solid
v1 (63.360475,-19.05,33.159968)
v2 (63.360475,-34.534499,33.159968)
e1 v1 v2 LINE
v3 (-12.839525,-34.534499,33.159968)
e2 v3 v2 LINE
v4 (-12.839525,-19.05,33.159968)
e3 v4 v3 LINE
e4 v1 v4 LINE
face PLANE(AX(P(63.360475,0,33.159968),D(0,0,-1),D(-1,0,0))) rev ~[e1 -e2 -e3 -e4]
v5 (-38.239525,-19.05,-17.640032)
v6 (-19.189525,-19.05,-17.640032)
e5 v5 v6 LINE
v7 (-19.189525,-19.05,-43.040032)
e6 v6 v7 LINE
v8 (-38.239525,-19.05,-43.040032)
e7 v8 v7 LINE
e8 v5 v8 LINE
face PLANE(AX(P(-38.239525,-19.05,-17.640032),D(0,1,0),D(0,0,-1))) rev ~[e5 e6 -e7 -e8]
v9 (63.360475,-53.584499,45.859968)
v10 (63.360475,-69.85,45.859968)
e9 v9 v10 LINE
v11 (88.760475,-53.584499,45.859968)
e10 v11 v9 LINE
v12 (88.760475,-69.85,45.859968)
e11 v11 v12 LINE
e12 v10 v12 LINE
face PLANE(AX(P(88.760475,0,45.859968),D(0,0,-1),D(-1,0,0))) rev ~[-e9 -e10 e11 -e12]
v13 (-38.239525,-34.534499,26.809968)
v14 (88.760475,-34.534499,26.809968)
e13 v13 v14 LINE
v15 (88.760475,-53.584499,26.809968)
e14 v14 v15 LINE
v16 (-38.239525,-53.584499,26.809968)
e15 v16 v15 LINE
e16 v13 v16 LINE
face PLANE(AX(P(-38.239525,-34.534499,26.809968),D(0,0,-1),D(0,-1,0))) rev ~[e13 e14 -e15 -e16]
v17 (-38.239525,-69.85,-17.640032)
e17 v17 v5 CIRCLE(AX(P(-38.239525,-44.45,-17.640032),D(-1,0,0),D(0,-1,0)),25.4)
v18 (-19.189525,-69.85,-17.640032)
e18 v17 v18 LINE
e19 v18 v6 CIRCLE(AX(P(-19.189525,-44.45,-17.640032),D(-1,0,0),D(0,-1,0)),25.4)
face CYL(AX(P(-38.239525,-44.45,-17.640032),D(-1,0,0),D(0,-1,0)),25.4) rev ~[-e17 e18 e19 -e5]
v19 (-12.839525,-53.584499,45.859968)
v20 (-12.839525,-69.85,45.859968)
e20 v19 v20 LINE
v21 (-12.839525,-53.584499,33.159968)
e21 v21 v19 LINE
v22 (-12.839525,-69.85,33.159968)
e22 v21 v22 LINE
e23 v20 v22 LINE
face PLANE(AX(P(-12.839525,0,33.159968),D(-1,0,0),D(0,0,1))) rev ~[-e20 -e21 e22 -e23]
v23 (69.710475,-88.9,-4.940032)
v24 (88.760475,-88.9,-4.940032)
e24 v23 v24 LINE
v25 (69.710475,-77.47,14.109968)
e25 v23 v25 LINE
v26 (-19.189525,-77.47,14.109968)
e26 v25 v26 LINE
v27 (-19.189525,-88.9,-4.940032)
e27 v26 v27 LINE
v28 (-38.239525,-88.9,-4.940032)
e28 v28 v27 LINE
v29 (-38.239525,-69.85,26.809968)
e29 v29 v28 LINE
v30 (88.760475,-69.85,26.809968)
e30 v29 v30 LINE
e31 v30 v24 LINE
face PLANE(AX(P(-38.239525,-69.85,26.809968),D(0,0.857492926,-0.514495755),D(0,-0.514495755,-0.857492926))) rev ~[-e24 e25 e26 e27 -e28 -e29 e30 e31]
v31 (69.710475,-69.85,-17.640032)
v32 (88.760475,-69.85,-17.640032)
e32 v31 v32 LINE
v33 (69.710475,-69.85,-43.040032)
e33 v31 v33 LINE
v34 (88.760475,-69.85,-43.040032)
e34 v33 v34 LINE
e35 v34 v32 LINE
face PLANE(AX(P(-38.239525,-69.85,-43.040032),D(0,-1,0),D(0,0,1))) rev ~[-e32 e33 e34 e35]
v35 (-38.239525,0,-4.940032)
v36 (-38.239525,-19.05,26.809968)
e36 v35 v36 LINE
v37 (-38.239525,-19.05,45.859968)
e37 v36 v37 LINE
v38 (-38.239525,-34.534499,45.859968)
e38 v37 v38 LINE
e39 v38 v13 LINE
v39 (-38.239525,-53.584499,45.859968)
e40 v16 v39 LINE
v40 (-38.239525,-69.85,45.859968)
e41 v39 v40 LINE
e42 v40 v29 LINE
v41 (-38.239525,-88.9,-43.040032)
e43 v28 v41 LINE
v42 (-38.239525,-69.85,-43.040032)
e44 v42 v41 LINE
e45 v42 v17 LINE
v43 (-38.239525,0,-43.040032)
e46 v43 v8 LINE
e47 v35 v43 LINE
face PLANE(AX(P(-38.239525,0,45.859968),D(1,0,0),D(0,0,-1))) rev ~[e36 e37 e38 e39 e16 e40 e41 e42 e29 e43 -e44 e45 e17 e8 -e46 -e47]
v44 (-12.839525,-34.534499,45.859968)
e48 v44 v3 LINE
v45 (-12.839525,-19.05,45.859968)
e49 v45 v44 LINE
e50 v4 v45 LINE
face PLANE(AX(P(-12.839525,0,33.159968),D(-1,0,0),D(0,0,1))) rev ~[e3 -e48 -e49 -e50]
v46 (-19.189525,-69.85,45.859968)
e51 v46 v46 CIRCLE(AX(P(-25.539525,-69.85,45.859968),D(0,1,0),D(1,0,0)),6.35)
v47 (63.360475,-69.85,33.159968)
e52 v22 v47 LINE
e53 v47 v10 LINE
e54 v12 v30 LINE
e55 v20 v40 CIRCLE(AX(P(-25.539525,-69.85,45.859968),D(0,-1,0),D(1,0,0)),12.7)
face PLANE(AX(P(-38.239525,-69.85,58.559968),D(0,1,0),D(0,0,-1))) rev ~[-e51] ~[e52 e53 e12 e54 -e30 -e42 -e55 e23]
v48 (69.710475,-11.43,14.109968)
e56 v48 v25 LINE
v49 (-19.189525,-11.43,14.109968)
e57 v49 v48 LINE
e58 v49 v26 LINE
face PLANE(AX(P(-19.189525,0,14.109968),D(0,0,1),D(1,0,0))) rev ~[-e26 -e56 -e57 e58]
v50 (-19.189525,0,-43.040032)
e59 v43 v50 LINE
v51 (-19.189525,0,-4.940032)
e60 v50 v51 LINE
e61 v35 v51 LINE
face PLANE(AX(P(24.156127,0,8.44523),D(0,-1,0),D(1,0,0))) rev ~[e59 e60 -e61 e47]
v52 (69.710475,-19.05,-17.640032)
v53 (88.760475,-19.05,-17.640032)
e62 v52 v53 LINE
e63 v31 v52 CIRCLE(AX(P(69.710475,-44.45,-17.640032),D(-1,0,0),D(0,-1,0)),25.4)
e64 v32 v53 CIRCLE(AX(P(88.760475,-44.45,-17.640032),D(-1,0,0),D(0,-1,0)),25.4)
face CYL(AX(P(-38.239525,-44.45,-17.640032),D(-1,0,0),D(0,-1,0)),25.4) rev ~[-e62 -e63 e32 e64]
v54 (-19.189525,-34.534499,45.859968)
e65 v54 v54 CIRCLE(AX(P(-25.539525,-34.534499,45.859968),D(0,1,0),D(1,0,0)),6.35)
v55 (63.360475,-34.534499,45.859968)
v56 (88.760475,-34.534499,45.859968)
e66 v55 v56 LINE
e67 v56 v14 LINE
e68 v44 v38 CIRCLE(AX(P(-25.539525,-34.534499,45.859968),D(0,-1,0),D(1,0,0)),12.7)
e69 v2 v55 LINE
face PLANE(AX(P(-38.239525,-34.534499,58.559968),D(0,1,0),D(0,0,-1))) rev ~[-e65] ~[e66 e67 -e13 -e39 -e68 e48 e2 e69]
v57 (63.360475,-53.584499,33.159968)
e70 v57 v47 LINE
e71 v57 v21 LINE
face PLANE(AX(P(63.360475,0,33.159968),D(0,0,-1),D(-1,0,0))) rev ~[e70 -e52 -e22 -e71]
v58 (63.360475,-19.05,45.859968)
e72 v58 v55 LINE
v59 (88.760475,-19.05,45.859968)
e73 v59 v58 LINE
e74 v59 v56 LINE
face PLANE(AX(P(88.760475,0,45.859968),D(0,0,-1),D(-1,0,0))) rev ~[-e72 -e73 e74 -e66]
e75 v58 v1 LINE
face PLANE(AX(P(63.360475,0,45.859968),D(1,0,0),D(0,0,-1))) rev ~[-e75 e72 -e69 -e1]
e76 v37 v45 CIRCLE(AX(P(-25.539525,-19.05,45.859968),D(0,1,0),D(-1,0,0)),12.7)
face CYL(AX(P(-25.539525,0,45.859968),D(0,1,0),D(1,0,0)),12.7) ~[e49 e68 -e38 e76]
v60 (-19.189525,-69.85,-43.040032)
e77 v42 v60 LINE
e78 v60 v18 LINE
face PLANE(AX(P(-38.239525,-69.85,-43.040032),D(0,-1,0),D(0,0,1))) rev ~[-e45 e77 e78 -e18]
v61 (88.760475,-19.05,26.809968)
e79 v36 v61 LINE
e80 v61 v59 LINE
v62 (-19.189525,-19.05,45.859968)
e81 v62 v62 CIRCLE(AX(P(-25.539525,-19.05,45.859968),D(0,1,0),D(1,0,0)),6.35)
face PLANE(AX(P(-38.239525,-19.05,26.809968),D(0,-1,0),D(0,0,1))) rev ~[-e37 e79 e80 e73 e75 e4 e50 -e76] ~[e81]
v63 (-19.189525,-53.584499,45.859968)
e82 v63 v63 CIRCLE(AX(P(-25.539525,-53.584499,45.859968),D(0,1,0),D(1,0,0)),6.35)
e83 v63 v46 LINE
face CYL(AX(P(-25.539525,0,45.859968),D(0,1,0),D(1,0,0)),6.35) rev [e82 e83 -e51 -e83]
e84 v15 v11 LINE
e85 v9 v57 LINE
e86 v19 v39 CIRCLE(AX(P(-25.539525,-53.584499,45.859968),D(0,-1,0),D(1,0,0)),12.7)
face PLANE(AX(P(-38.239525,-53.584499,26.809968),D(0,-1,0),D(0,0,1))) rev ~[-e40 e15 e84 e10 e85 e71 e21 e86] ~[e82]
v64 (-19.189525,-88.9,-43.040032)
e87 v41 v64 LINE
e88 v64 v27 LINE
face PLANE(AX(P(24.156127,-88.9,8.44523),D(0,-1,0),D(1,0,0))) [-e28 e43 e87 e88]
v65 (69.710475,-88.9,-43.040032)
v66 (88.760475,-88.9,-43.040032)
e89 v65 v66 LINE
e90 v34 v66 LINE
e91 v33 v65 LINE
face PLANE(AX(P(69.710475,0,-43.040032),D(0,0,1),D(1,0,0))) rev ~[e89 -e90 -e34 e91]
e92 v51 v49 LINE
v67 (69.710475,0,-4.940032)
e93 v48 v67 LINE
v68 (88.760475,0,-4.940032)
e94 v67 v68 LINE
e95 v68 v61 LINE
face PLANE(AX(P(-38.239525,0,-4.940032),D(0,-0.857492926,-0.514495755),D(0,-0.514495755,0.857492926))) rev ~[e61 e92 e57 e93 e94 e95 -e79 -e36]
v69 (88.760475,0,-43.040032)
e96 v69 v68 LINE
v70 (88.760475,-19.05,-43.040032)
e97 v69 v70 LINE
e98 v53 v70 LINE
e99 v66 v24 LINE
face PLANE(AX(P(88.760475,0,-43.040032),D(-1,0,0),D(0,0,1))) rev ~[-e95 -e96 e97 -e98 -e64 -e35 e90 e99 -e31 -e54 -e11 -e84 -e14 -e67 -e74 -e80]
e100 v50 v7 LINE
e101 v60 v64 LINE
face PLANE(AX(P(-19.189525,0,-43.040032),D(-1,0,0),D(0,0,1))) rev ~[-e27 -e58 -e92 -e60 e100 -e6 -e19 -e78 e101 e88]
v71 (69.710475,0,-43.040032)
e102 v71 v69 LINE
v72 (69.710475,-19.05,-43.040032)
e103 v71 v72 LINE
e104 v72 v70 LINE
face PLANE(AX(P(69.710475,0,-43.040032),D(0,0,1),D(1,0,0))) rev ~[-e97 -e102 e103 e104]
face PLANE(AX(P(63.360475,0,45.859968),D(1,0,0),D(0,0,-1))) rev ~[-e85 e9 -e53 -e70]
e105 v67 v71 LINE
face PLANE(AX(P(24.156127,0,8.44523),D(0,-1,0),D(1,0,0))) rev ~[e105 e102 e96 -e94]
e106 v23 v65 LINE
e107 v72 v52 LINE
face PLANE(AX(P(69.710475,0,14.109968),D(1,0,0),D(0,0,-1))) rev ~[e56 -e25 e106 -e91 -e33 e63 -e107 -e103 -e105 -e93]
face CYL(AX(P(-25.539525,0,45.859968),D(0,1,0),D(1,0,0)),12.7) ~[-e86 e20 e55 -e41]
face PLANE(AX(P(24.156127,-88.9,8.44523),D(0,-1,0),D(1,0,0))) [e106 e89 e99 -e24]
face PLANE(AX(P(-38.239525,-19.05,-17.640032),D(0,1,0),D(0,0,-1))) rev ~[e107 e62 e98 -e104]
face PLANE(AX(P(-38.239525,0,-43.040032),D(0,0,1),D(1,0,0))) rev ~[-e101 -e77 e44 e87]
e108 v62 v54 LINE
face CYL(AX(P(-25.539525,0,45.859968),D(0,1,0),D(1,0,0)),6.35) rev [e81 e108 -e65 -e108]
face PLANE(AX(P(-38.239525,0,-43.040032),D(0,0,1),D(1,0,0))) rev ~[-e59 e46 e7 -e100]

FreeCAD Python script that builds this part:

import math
import FreeCAD as App
import Part
import Sketcher
from FreeCAD import Vector
Q = App.Units.Quantity


def add_polygon(sketch, points):
    """Adds a closed chain of lines whose ends are joined by coincident constraints."""
    first, n = sketch.GeometryCount, len(points)
    for a, b in zip(points, points[1:] + points[:1]):
        sketch.addGeometry(Part.LineSegment(App.Vector(*a, 0), App.Vector(*b, 0)), False)
    for i in range(n):
        sketch.addConstraint(Sketcher.Constraint("Coincident", first + i, 2, first + (i + 1) % n, 1))

doc = App.newDocument("Part")
body = doc.addObject("PartDesign::Body", "Body")

# Sketch on XZ plane
sketch1 = doc.addObject("Sketcher::SketchObject", "Sketch")
body.addObject(sketch1)
sketch1.AttachmentSupport = (doc.XZ_Plane, [""])
sketch1.MapMode = "FlatFace"
sketch1.addGeometry([
    Part.LineSegment(Vector(-38, -43, 0), Vector(-19, -43, 0)),  # 0
    Part.LineSegment(Vector(-19, -43, 0), Vector(-19, 14, 0)),  # 1
    Part.LineSegment(Vector(-19, 14, 0), Vector(70, 14, 0)),  # 2
    Part.LineSegment(Vector(70, 14, 0), Vector(70, -43, 0)),  # 3
    Part.LineSegment(Vector(70, -43, 0), Vector(89, -43, 0)),  # 4
    Part.LineSegment(Vector(89, -43, 0), Vector(89, 46, 0)),  # 5
    Part.LineSegment(Vector(89, 46, 0), Vector(63, 46, 0)),  # 6
    Part.LineSegment(Vector(63, 46, 0), Vector(63, 33, 0)),  # 7
    Part.LineSegment(Vector(63, 33, 0), Vector(-13, 33, 0)),  # 8
    Part.LineSegment(Vector(-13, 33, 0), Vector(-13, 46, 0)),  # 9
    Part.ArcOfCircle(Part.Circle(Vector(-26, 46, 0), Vector(0, 0, 1), 13), math.radians(0), math.radians(180)),  # 10
    Part.LineSegment(Vector(-38, 46, 0), Vector(-38, -43, 0)),  # 11
    Part.Circle(Vector(-26, 46, 0), Vector(0, 0, 1), 6),  # 12
], False)
sketch1.addConstraint([
    Sketcher.Constraint("Coincident", 0, 2, 1, 1),
    Sketcher.Constraint("Coincident", 1, 2, 2, 1),
    Sketcher.Constraint("Coincident", 2, 2, 3, 1),
    Sketcher.Constraint("Coincident", 3, 2, 4, 1),
    Sketcher.Constraint("Coincident", 4, 2, 5, 1),
    Sketcher.Constraint("Coincident", 5, 2, 6, 1),
    Sketcher.Constraint("Coincident", 6, 2, 7, 1),
    Sketcher.Constraint("Coincident", 7, 2, 8, 1),
    Sketcher.Constraint("Coincident", 8, 2, 9, 1),
    Sketcher.Constraint("Tangent", 9, 2, 10, 1),
    Sketcher.Constraint("Tangent", 10, 2, 11, 1),
    Sketcher.Constraint("Coincident", 11, 2, 0, 1),
    Sketcher.Constraint("Horizontal", 0),
    Sketcher.Constraint("Vertical", 1),
    Sketcher.Constraint("Horizontal", 2),
    Sketcher.Constraint("Vertical", 3),
    Sketcher.Constraint("Horizontal", 4),
    Sketcher.Constraint("Vertical", 5),
    Sketcher.Constraint("Horizontal", 6),
    Sketcher.Constraint("Vertical", 7),
    Sketcher.Constraint("Horizontal", 8),
    Sketcher.Constraint("Vertical", 9),
    Sketcher.Constraint("Vertical", 11),
    Sketcher.Constraint("Coincident", 12, 3, 10, 3),
    Sketcher.Constraint("Horizontal", 0, 2, 3, 2),
    Sketcher.Constraint("Horizontal", 12, 3, 5, 2),
    Sketcher.Constraint("Equal", 0, 4),
    Sketcher.Constraint("Equal", 2, 5),
    Sketcher.Constraint("Diameter", 12, Q("0.5 in")),
    Sketcher.Constraint("Radius", 10, Q("0.5 in")),
    Sketcher.Constraint("DistanceX", 6, 2, 6, 1, Q("1 in")),
    Sketcher.Constraint("DistanceX", 8, 2, 8, 1, Q("3 in")),
    Sketcher.Constraint("DistanceX", 2, 1, 2, 2, Q("3.5 in")),
    Sketcher.Constraint("DistanceY", 7, 2, 7, 1, Q("0.5 in")),
    Sketcher.Constraint("DistanceY", 1, 1, 1, 2, Q("2.25 in")),
    Sketcher.Constraint("DistanceY", -1, 1, 10, 3, 45.859968),
    Sketcher.Constraint("DistanceX", 10, 3, -1, 1, 25.539525),
])
pad1 = doc.addObject("PartDesign::Pad", "Pad")
body.addObject(pad1)
pad1.Profile = sketch1
pad1.Length = Q("3.5 in")

# Sketch on YZ plane
sketch2 = doc.addObject("Sketcher::SketchObject", "Sketch001")
body.addObject(sketch2)
sketch2.AttachmentSupport = (doc.YZ_Plane, [""])
sketch2.MapMode = "FlatFace"
sketch2.AttachmentOffset = App.Placement(Vector(0, 0, -38.239525), App.Rotation())
add_polygon(sketch2, [(-70, 27), (-89, -5), (-89, 59), (-70, 59)])  # lines 0-3
add_polygon(sketch2, [(0, 59), (0, -5), (-19, 27), (-19, 59)])  # lines 4-7
add_polygon(sketch2, [(-35, 27), (-54, 27), (-54, 59), (-35, 59)])  # lines 8-11
sketch2.addGeometry(Part.ArcOfCircle(Part.Circle(Vector(-44, -18, 0), Vector(0, 0, 1), 25), math.radians(0), math.radians(180)), False)  # 12
sketch2.addGeometry(Part.LineSegment(Vector(-19, -18, 0), Vector(-19, -43, 0)), False)  # 13
sketch2.addGeometry(Part.LineSegment(Vector(-19, -43, 0), Vector(-70, -43, 0)), False)  # 14
sketch2.addGeometry(Part.LineSegment(Vector(-70, -43, 0), Vector(-70, -18, 0)), False)  # 15
sketch2.addConstraint([
    Sketcher.Constraint("Tangent", 12, 1, 13, 1),
    Sketcher.Constraint("Coincident", 13, 2, 14, 1),
    Sketcher.Constraint("Coincident", 14, 2, 15, 1),
    Sketcher.Constraint("Tangent", 15, 2, 12, 2),
    Sketcher.Constraint("Vertical", 1),
    Sketcher.Constraint("Horizontal", 2),
    Sketcher.Constraint("Vertical", 3),
    Sketcher.Constraint("Vertical", 4),
    Sketcher.Constraint("Vertical", 6),
    Sketcher.Constraint("Horizontal", 7),
    Sketcher.Constraint("Horizontal", 8),
    Sketcher.Constraint("Vertical", 9),
    Sketcher.Constraint("Horizontal", 10),
    Sketcher.Constraint("Vertical", 11),
    Sketcher.Constraint("Vertical", 13),
    Sketcher.Constraint("Horizontal", 14),
    Sketcher.Constraint("Vertical", 15),
    Sketcher.Constraint("PointOnObject", 4, 2, -2),
    Sketcher.Constraint("Horizontal", 0, 2, 4, 2),
    Sketcher.Constraint("Horizontal", 3, 2, 5, 2),
    Sketcher.Constraint("Horizontal", 2, 2, 6, 2),
    Sketcher.Constraint("Horizontal", 5, 2, 8, 2),
    Sketcher.Constraint("Horizontal", 7, 2, 9, 2),
    Sketcher.Constraint("Vertical", 6, 2, 12, 1),
    Sketcher.Constraint("Vertical", 3, 2, 14, 2),
    Sketcher.Constraint("Equal", 2, 7),
    Sketcher.Constraint("Equal", 7, 8),
    Sketcher.Constraint("Radius", 12, Q("1 in")),
    Sketcher.Constraint("DistanceY", 13, 2, 13, 1, Q("1 in")),
    Sketcher.Constraint("DistanceY", 1, 1, 1, 2, Q("2.5 in")),
    Sketcher.Constraint("DistanceY", 12, 3, 1, 2, Q("3 in")),
    Sketcher.Constraint("DistanceX", 2, 1, 2, 2, Q("0.75 in")),
    Sketcher.Constraint("DistanceY", 3, 2, 3, 1, Q("1.25 in")),
    Sketcher.Constraint("DistanceX", 8, 2, -1, 1, 53.584499),
    Sketcher.Constraint("DistanceY", -1, 1, 3, 2, 26.809968),
])
pocket1 = doc.addObject("PartDesign::Pocket", "Pocket")
body.addObject(pocket1)
pocket1.Profile = sketch2
pocket1.Type = "ThroughAll"
pocket1.Reversed = True

doc.recompute()
